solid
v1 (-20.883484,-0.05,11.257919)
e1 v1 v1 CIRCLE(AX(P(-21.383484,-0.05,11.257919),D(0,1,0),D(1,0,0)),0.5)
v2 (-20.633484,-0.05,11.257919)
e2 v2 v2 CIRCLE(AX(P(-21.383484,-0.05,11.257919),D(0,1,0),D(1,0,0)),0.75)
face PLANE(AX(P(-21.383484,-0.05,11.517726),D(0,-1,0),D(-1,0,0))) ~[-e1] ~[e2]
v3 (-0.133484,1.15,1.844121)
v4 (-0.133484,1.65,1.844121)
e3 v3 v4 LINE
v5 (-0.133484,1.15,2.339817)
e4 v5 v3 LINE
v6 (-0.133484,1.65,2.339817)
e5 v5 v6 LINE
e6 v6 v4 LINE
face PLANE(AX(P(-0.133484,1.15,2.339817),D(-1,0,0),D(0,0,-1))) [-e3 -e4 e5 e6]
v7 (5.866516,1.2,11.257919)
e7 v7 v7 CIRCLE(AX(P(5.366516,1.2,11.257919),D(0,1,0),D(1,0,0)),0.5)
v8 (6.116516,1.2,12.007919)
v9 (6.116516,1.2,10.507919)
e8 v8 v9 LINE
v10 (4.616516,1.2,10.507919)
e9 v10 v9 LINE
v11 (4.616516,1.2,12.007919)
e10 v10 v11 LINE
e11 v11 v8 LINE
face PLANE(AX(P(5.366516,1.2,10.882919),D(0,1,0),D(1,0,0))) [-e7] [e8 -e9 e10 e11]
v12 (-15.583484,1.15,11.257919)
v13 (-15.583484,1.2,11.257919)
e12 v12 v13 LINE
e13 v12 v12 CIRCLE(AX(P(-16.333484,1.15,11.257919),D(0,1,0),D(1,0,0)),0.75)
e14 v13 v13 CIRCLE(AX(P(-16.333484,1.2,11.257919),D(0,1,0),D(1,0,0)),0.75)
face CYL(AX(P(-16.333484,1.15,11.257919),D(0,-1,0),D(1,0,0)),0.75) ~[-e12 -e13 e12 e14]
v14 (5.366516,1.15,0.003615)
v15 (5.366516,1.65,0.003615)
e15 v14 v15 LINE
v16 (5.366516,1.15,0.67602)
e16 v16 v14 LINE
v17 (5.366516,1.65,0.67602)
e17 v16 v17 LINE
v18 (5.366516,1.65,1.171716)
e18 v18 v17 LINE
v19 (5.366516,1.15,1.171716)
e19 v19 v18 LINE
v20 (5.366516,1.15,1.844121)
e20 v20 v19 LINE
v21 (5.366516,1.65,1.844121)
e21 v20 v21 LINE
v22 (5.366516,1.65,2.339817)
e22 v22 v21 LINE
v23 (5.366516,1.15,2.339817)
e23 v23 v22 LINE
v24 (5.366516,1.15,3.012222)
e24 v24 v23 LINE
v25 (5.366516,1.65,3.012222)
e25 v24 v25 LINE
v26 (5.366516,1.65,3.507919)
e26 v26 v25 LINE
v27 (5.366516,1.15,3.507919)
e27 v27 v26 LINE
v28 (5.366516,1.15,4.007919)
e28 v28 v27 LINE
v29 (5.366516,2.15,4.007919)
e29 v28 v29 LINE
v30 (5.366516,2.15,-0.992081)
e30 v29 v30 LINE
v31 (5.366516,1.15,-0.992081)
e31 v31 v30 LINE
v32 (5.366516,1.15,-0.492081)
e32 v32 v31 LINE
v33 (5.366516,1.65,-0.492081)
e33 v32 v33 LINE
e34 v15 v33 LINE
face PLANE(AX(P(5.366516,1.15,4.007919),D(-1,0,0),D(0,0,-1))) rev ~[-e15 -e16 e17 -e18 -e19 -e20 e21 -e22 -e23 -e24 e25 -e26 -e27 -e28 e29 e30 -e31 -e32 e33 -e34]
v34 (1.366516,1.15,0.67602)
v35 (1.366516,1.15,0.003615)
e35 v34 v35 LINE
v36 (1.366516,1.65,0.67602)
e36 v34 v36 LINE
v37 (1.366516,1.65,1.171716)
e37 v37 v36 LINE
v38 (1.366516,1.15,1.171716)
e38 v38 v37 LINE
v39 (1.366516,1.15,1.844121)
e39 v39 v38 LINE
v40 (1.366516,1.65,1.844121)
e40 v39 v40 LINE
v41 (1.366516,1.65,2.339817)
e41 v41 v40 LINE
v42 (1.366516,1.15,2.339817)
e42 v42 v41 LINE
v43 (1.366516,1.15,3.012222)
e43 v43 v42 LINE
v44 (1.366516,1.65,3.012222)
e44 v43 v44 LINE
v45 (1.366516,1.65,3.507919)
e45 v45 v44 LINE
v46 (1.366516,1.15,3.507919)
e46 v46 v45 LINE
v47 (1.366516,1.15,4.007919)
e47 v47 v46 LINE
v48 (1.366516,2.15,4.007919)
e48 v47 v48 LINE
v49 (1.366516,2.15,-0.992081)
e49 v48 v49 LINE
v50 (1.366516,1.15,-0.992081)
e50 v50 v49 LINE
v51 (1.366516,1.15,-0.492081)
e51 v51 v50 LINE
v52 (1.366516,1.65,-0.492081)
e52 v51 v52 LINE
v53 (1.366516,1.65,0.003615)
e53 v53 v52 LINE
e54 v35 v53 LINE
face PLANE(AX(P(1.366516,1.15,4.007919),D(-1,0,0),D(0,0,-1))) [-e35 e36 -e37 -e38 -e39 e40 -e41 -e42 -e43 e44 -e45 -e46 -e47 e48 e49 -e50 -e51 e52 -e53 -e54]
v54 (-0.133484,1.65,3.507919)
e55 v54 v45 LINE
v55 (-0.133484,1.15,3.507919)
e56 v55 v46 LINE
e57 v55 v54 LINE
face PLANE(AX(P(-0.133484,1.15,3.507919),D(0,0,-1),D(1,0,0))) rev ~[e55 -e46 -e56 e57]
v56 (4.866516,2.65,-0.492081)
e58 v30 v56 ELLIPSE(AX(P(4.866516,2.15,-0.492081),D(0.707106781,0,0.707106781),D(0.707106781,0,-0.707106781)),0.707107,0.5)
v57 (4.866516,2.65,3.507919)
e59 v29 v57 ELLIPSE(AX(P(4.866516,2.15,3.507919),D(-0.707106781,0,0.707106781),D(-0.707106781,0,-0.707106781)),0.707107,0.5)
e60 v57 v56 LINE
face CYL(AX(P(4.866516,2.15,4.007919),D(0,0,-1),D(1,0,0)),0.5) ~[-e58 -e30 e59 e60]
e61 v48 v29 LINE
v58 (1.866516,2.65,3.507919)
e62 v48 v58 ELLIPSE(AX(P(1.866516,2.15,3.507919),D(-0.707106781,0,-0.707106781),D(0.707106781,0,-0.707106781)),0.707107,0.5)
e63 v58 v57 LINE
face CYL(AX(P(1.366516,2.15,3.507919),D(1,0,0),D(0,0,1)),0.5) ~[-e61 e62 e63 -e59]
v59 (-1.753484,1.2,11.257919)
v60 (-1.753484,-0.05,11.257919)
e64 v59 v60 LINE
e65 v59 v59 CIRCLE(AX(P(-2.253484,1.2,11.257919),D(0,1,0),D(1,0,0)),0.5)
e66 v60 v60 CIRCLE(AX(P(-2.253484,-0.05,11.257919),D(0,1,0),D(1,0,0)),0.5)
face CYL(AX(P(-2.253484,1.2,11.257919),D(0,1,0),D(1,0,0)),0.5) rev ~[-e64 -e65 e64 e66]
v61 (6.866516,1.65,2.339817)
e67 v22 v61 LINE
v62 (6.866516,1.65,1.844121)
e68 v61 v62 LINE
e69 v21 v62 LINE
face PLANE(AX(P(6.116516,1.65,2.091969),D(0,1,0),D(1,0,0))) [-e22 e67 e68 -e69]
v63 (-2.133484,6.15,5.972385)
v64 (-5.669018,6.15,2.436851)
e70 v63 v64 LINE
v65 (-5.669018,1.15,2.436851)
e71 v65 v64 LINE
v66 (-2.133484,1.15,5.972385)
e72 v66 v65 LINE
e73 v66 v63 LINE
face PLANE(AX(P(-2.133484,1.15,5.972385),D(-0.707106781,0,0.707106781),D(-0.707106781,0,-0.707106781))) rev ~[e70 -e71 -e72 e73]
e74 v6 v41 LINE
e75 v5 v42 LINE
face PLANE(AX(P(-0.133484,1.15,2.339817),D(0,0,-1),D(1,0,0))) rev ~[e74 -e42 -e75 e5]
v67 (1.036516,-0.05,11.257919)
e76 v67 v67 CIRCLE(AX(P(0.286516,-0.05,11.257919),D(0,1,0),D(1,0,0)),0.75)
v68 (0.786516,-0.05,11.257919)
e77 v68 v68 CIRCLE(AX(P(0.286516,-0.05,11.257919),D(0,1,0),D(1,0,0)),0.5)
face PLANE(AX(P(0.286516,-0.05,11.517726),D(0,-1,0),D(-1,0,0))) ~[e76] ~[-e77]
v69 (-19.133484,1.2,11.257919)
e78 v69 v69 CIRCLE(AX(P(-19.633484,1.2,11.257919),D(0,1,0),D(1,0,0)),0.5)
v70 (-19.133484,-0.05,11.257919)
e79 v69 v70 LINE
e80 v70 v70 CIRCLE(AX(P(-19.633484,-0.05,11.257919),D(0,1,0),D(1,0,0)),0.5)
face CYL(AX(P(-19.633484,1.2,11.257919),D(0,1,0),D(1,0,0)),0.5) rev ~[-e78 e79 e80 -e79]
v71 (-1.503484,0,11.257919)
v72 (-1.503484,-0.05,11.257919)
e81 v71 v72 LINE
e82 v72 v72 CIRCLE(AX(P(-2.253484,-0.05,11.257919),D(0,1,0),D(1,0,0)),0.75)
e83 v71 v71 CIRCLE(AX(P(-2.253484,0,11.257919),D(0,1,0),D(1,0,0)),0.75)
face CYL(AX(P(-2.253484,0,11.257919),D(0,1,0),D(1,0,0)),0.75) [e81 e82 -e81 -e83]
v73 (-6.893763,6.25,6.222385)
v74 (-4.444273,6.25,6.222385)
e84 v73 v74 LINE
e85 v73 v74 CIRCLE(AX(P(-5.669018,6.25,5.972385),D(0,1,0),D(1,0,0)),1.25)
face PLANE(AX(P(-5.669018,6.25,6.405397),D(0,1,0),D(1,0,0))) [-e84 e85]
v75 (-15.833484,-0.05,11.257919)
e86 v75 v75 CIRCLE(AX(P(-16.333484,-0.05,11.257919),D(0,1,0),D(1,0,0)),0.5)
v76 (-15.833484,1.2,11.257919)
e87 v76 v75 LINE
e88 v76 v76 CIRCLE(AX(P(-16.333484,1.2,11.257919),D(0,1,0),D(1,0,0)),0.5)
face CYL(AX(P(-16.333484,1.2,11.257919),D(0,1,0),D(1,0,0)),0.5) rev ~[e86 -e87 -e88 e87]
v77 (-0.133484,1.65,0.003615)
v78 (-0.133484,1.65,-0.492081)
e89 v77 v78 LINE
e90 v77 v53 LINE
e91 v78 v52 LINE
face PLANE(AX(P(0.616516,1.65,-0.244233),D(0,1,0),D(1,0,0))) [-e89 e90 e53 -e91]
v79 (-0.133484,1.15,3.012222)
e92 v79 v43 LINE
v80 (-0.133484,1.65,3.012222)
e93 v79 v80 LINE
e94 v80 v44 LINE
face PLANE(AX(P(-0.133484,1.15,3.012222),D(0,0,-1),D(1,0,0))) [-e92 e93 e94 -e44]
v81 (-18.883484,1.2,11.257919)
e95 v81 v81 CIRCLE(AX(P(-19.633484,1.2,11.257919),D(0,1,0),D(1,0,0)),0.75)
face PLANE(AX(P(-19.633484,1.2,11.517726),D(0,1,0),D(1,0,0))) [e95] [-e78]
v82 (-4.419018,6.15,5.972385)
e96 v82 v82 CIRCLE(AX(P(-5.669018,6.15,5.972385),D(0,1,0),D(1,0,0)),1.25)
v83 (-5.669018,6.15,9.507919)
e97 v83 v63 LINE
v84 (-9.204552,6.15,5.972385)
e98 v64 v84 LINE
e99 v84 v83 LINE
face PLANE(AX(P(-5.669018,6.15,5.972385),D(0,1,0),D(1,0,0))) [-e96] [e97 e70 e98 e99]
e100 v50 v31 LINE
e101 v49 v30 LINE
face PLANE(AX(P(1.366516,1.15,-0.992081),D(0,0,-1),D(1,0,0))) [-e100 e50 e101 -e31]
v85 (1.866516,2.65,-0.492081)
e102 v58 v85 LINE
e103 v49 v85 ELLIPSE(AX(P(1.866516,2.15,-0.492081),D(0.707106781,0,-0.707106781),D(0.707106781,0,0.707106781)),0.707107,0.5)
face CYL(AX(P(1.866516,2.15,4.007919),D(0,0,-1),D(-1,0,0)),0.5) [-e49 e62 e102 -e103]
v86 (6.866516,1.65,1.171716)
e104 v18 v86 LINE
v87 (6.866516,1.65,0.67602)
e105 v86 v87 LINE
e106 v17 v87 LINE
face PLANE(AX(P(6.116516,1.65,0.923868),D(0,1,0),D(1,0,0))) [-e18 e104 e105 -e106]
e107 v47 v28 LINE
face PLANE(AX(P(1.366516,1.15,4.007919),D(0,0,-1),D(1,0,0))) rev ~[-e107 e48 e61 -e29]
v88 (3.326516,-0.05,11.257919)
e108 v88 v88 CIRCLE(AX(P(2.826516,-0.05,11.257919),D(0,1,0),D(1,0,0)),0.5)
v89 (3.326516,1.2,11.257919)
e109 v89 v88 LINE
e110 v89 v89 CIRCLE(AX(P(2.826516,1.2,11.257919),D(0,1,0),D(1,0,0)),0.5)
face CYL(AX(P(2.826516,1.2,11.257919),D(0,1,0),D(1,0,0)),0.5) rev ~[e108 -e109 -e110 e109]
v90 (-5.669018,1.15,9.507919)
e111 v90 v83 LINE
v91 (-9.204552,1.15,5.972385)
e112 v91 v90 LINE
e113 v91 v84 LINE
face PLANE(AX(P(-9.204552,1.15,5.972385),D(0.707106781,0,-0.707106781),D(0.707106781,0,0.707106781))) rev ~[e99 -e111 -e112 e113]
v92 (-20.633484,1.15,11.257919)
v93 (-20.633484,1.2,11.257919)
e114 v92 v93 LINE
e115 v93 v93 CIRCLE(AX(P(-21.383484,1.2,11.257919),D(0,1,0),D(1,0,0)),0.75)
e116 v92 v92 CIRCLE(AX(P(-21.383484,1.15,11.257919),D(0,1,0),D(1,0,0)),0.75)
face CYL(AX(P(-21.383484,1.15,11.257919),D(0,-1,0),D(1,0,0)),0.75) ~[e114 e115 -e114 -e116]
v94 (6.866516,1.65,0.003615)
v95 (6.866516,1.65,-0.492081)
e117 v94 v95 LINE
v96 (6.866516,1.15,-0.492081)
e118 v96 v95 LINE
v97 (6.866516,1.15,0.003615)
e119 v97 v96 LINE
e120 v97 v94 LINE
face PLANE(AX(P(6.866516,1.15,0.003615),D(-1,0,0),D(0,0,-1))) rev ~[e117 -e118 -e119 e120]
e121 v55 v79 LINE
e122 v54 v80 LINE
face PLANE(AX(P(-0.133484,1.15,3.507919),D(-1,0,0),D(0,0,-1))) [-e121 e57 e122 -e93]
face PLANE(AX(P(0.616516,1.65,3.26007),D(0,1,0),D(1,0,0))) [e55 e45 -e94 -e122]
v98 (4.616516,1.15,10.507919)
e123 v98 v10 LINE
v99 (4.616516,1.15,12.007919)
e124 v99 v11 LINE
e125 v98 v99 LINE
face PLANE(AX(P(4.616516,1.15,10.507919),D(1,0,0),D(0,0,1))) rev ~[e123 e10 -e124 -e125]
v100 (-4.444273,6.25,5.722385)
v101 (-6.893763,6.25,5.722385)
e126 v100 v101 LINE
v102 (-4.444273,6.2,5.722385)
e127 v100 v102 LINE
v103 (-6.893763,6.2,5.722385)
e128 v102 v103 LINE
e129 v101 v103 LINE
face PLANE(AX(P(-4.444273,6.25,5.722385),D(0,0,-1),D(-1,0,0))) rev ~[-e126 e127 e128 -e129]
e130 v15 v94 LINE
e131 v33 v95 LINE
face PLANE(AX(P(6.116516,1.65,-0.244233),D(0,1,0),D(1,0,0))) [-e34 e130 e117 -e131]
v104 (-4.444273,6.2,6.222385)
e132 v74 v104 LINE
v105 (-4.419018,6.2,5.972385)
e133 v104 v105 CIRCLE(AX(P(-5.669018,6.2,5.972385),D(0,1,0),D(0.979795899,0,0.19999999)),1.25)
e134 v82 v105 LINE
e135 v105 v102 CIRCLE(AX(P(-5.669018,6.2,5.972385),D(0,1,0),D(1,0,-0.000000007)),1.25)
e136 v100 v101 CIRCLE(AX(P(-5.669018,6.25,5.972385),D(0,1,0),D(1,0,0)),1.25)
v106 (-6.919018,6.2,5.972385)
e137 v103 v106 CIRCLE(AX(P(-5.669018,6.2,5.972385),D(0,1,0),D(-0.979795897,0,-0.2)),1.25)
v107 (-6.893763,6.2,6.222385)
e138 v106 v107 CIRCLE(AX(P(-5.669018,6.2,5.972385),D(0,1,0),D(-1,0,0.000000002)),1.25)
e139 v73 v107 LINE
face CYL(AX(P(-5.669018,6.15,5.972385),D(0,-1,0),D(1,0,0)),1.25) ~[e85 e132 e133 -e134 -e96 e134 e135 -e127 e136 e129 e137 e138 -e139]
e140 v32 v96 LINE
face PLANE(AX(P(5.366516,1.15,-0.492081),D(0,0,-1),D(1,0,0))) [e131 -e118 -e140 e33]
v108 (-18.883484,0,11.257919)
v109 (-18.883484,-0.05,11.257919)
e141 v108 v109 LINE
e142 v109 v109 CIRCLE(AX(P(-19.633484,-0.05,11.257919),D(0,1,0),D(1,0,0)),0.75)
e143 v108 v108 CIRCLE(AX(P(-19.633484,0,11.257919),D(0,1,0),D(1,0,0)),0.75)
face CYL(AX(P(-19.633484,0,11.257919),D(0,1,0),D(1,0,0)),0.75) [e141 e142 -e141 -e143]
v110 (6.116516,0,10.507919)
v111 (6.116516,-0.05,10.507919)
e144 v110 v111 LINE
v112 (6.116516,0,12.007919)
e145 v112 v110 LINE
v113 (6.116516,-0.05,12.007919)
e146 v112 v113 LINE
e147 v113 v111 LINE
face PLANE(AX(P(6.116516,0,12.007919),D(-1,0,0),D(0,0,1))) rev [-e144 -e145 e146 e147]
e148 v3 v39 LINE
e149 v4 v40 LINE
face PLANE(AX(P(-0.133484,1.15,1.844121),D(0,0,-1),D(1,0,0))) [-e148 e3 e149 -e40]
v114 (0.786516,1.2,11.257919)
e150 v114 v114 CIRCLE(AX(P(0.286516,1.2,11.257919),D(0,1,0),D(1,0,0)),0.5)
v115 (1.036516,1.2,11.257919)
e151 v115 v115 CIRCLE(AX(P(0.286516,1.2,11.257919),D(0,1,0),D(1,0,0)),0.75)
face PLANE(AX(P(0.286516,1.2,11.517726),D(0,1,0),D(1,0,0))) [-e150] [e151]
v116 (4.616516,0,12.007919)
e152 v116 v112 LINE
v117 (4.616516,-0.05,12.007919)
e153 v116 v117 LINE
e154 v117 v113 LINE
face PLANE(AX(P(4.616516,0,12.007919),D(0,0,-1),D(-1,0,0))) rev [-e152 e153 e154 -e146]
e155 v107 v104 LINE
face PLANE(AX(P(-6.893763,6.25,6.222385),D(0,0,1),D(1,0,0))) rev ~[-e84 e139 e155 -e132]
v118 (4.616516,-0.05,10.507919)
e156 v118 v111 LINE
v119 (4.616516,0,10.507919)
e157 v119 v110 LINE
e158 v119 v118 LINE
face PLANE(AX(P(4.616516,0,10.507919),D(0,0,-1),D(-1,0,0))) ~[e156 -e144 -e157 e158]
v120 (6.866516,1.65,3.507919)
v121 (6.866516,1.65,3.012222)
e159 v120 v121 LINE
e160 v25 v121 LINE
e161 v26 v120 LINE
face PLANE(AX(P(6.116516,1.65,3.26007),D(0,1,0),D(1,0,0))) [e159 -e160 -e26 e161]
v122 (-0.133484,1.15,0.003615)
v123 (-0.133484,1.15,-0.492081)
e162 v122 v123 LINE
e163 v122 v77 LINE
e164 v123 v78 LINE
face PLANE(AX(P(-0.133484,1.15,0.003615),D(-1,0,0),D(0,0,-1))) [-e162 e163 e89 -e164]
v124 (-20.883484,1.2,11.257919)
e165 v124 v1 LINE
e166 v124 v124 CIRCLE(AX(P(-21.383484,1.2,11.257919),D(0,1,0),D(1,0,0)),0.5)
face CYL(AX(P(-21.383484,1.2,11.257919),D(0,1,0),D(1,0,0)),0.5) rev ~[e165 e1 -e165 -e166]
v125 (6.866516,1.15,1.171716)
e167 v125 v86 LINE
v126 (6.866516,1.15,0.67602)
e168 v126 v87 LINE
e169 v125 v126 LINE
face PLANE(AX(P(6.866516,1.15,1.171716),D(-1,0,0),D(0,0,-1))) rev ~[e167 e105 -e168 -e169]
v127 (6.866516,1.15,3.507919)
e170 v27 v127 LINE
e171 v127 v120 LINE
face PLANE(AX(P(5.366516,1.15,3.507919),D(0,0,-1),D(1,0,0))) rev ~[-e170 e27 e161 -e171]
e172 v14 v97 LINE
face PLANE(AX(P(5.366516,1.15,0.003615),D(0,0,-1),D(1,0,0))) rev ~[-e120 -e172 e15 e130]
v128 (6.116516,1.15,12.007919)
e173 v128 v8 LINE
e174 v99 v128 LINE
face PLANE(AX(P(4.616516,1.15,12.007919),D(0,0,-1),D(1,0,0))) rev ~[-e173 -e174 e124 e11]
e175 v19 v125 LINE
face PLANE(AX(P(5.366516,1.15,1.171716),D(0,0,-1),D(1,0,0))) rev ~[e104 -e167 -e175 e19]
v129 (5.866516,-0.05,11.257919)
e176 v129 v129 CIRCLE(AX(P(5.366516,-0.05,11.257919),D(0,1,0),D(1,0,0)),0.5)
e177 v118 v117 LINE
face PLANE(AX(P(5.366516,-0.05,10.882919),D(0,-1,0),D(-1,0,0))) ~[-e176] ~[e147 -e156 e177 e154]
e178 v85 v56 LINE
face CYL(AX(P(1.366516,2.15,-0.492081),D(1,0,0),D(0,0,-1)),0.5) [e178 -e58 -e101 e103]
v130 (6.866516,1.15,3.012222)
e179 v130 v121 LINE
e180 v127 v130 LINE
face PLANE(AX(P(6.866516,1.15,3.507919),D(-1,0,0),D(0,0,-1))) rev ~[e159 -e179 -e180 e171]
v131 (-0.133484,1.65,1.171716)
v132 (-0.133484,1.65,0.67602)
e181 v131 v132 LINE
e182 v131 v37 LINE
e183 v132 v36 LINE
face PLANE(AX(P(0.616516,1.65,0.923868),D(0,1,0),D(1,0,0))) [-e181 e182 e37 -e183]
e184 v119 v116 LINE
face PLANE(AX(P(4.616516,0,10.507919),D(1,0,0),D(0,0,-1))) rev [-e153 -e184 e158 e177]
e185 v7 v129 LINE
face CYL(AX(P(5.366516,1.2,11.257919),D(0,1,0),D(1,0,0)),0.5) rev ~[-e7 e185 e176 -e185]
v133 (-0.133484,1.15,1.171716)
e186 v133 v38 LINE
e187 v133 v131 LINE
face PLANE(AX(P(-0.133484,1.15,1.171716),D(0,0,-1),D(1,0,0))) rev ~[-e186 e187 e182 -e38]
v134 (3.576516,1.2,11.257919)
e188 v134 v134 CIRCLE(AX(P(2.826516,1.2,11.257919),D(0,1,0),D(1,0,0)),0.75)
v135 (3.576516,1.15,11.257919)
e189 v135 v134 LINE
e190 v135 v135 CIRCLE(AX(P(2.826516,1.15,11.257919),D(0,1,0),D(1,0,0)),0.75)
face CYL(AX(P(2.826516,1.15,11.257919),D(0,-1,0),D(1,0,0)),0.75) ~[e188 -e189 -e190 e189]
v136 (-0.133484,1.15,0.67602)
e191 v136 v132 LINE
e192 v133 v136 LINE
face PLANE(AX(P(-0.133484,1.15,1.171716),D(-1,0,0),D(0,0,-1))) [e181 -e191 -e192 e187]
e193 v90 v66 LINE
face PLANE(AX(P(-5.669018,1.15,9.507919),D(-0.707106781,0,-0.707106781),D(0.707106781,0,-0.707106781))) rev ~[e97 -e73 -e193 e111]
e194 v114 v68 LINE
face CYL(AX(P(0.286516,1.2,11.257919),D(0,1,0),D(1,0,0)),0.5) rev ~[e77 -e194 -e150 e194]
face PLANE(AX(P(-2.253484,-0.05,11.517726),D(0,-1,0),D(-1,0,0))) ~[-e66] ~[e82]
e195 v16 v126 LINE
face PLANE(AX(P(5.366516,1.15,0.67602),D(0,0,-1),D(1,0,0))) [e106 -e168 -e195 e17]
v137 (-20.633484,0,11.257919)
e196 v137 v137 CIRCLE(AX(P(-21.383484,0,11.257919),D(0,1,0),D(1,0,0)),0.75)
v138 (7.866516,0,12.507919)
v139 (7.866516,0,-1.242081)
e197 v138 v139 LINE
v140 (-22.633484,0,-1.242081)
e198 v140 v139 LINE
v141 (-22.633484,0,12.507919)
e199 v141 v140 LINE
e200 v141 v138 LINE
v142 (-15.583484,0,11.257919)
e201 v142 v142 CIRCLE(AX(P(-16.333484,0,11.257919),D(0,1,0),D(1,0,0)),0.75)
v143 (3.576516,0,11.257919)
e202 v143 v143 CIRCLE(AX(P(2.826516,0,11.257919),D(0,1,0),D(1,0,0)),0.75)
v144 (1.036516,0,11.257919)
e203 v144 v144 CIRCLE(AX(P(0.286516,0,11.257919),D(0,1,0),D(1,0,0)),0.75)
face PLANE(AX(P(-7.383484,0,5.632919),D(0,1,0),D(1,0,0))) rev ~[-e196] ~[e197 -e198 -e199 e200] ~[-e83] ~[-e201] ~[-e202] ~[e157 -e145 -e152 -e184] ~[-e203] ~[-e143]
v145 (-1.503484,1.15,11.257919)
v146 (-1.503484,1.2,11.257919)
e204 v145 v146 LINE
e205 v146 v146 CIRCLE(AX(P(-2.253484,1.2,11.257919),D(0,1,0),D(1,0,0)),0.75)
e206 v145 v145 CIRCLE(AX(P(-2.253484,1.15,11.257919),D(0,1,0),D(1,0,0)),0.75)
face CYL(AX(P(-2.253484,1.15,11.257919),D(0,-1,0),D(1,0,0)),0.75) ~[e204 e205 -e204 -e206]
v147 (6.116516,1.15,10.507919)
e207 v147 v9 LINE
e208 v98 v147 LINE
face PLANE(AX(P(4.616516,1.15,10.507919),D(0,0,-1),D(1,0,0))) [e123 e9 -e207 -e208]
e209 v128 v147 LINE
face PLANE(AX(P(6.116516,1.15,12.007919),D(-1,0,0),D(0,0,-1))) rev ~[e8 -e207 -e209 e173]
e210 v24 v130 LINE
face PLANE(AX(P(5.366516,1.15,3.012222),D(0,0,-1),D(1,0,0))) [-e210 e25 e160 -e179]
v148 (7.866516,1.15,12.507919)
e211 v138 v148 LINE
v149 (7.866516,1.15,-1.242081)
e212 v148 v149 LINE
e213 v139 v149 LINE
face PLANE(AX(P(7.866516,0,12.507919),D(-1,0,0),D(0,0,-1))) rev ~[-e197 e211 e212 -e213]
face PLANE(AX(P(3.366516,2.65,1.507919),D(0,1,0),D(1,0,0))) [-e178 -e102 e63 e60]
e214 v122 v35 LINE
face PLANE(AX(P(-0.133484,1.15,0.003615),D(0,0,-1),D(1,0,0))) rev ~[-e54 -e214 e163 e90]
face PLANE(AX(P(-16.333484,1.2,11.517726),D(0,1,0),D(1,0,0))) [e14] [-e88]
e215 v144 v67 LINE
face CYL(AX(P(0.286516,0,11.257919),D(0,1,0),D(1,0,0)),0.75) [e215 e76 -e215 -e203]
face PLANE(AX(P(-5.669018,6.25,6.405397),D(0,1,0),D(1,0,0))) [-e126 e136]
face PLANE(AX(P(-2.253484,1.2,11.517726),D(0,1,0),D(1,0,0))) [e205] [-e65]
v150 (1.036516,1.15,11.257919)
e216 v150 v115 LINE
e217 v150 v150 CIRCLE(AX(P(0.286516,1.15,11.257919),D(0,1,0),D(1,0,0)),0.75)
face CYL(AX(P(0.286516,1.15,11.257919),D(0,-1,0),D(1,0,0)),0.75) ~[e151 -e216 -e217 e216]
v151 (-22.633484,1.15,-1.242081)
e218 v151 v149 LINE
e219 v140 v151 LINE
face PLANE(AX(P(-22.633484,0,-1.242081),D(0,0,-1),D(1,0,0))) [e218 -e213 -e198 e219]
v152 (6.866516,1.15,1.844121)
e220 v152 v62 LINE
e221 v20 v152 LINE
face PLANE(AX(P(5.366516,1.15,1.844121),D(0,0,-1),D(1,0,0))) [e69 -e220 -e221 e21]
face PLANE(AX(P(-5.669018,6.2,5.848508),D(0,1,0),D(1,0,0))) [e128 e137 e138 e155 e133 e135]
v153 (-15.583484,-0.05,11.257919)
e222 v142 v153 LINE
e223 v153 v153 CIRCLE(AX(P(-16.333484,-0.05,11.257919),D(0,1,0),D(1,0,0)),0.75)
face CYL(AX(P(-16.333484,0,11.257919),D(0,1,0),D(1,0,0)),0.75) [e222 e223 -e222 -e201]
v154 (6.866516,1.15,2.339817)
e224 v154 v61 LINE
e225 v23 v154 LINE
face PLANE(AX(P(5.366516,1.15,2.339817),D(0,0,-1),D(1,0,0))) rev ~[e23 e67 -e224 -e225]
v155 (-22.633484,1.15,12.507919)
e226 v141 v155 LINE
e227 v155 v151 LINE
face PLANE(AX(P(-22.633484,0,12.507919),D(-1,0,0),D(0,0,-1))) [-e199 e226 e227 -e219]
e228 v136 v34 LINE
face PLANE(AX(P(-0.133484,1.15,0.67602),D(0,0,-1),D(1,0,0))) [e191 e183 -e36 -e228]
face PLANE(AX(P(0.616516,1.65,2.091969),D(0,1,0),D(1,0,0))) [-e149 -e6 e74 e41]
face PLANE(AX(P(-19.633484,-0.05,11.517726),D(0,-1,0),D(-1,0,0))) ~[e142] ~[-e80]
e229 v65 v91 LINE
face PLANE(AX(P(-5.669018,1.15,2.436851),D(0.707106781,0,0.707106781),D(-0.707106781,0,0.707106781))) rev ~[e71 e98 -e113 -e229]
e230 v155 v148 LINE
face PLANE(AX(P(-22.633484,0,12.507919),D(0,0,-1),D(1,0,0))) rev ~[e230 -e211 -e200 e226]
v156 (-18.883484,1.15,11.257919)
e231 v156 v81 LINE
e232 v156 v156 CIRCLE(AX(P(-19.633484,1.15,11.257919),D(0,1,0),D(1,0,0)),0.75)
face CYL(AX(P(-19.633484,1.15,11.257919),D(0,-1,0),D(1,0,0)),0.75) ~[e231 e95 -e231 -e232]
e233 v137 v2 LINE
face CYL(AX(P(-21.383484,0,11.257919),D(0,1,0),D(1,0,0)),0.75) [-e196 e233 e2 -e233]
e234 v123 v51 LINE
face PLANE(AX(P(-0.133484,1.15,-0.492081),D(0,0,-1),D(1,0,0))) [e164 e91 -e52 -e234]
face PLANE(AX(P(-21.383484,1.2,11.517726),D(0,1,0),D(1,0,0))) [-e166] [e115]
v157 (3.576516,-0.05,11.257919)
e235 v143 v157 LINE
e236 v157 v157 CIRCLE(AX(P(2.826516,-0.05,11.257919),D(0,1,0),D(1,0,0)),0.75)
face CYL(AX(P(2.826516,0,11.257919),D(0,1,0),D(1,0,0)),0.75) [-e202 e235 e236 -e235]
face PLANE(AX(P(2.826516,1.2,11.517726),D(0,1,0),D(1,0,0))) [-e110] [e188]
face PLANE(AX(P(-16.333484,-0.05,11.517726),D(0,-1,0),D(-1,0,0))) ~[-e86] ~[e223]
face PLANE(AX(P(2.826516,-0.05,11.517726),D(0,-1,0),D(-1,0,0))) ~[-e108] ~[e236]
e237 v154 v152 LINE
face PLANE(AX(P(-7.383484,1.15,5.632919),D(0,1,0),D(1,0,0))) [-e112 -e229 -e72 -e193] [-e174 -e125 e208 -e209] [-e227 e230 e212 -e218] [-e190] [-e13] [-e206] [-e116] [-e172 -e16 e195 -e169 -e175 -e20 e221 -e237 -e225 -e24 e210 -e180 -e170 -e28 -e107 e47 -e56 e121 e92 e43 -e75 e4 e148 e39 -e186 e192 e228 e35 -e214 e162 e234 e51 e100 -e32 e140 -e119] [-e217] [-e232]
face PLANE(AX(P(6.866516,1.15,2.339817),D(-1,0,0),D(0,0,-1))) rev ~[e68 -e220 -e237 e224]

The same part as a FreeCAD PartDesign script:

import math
import FreeCAD as App
import Part
import Sketcher
from FreeCAD import Vector
Q = App.Units.Quantity


def edges_at(feature, points):
    """Names of the edges that pass closest to the given points."""
    edges = feature.Shape.Edges
    near = lambda p: min(range(len(edges)), key=lambda i: edges[i].distToShape(Part.Vertex(*p))[0])
    return sorted({f"Edge{near(p) + 1}" for p in points})

doc = App.newDocument("Part")
params = doc.addObject("Spreadsheet::Sheet", "Params")
for row, (alias, value) in enumerate([
    ("sketch1_width", "30.5 mm"),
    ("sketch1_height", "13.75 mm"),
    ("pad1_length", "1.15 mm"),
    ("sketch2_length", "5 mm"),
    ("pad2_length", "5 mm"),
    ("sketch3_diameter", "2.5 mm"),
    ("pad3_length", "0.1 mm"),
    ("sketch4_radius", "1.25 mm"),
    ("pocket1_length", "0.05 mm"),
    ("sketch5_diameter", "1.5 mm"),
    ("sketch5_width", "1.5 mm"),
    ("pad4_length", "0.05 mm"),
    ("sketch6_diameter", "1 mm"),
    ("sketch7_width", "4 mm"),
    ("sketch7_height", "5 mm"),
    ("pad5_length", "1.5 mm"),
    ("fillet_radius", "0.5 mm"),
    ("sketch8_width", "1.5 mm"),
    ("pad6_length", "0.5 mm"),
], start=1):
    params.set(f"A{row}", alias)
    params.set(f"B{row}", "=" + value)
    params.setAlias(f"B{row}", alias)

body = doc.addObject("PartDesign::Body", "Body")

sketch1 = body.newObject("Sketcher::SketchObject", "Sketch")
sketch1.AttachmentSupport = (doc.getObject("XZ_Plane"), [""])
sketch1.MapMode = "FlatFace"
sketch1.addGeometry([
    Part.LineSegment(Vector(-23, -1, 0), Vector(-23, 13, 0)),
    Part.LineSegment(Vector(-23, 13, 0), Vector(8, 13, 0)),
    Part.LineSegment(Vector(8, 13, 0), Vector(8, -1, 0)),
    Part.LineSegment(Vector(8, -1, 0), Vector(-23, -1, 0)),
], False)
sketch1.addConstraint([
    Sketcher.Constraint("Coincident", 0, 2, 1, 1),
    Sketcher.Constraint("Coincident", 1, 2, 2, 1),
    Sketcher.Constraint("Coincident", 2, 2, 3, 1),
    Sketcher.Constraint("Coincident", 3, 2, 0, 1),
    Sketcher.Constraint("Vertical", 0),
    Sketcher.Constraint("Horizontal", 1),
    Sketcher.Constraint("Vertical", 2),
    Sketcher.Constraint("Horizontal", 3),
    Sketcher.Constraint("DistanceX", 1, 1, 1, 2, Q("30.5 mm")),
    Sketcher.Constraint("DistanceY", 0, 1, 0, 2, Q("13.75 mm")),
    Sketcher.Constraint("DistanceY", -1, 1, 0, 2, Q("12.507919 mm")),
    Sketcher.Constraint("DistanceX", 0, 2, -1, 1, Q("22.633484 mm")),
])
sketch1.setExpression("Constraints[8]", "Params.sketch1_width")
sketch1.setExpression("Constraints[9]", "Params.sketch1_height")
pad1 = body.newObject("PartDesign::Pad", "Pad")
pad1.Profile = sketch1
pad1.setExpression("Length", "Params.pad1_length")
pad1.Reversed = True

sketch2 = body.newObject("Sketcher::SketchObject", "Sketch001")
sketch2.AttachmentSupport = (doc.getObject("XZ_Plane"), [""])
sketch2.MapMode = "FlatFace"
sketch2.AttachmentOffset = App.Placement(Vector(0, 0, -1.15), App.Rotation())
sketch2.addGeometry([
    Part.LineSegment(Vector(-9, 6, 0), Vector(-6, 10, 0)),
    Part.LineSegment(Vector(-6, 10, 0), Vector(-2, 6, 0)),
    Part.LineSegment(Vector(-2, 6, 0), Vector(-6, 2, 0)),
    Part.LineSegment(Vector(-6, 2, 0), Vector(-9, 6, 0)),
], False)
sketch2.addConstraint([
    Sketcher.Constraint("Coincident", 0, 2, 1, 1),
    Sketcher.Constraint("Coincident", 1, 2, 2, 1),
    Sketcher.Constraint("Coincident", 2, 2, 3, 1),
    Sketcher.Constraint("Coincident", 3, 2, 0, 1),
    Sketcher.Constraint("Perpendicular", 0, 1),
    Sketcher.Constraint("Perpendicular", 1, 2),
    Sketcher.Constraint("Perpendicular", 2, 3),
    Sketcher.Constraint("Horizontal", 1, 2, 3, 2),
    Sketcher.Constraint("Vertical", 0, 2, 2, 2),
    Sketcher.Constraint("Distance", 0, Q("5 mm")),
    Sketcher.Constraint("DistanceX", 0, 2, -1, 1, Q("5.669018 mm")),
    Sketcher.Constraint("DistanceY", -1, 1, 0, 2, Q("9.507919 mm")),
])
sketch2.setExpression("Constraints[9]", "Params.sketch2_length")
pad2 = body.newObject("PartDesign::Pad", "Pad001")
pad2.Profile = sketch2
pad2.setExpression("Length", "Params.pad2_length")
pad2.Reversed = True

sketch3 = body.newObject("Sketcher::SketchObject", "Sketch002")
sketch3.AttachmentSupport = (doc.getObject("XZ_Plane"), [""])
sketch3.MapMode = "FlatFace"
sketch3.AttachmentOffset = App.Placement(Vector(0, 0, -6.15), App.Rotation())
sketch3.addGeometry(Part.Circle(Vector(-5.7, 6, 0), Vector(0, 0, 1), 1.2), False)
sketch3.addConstraint([
    Sketcher.Constraint("Diameter", 0, Q("2.5 mm")),
    Sketcher.Constraint("DistanceX", 0, 3, -1, 1, Q("5.669018 mm")),
    Sketcher.Constraint("DistanceY", -1, 1, 0, 3, Q("5.972385 mm")),
])
sketch3.setExpression("Constraints[0]", "Params.sketch3_diameter")
pad3 = body.newObject("PartDesign::Pad", "Pad002")
pad3.Profile = sketch3
pad3.setExpression("Length", "Params.pad3_length")
pad3.Reversed = True

sketch4 = body.newObject("Sketcher::SketchObject", "Sketch003")
sketch4.AttachmentSupport = (doc.getObject("XZ_Plane"), [""])
sketch4.MapMode = "FlatFace"
sketch4.AttachmentOffset = App.Placement(Vector(0, 0, -6.25), App.Rotation())
sketch4.addGeometry([
    Part.ArcOfCircle(Part.Circle(Vector(-5.67, 5.97, 0), Vector(0, 0, 1), 1.25), math.radians(-11.54), math.radians(0)),
    Part.LineSegment(Vector(-4.44, 5.72, 0), Vector(-6.89, 5.72, 0)),
    Part.ArcOfCircle(Part.Circle(Vector(-5.67, 5.97, 0), Vector(0, 0, 1), 1.25), math.radians(-180), math.radians(-168.46)),
    Part.ArcOfCircle(Part.Circle(Vector(-5.67, 5.97, 0), Vector(0, 0, 1), 1.25), math.radians(168.46), math.radians(180)),
    Part.LineSegment(Vector(-6.89, 6.22, 0), Vector(-4.44, 6.22, 0)),
    Part.ArcOfCircle(Part.Circle(Vector(-5.67, 5.97, 0), Vector(0, 0, 1), 1.25), math.radians(0), math.radians(11.54)),
], False)
sketch4.addConstraint([
    Sketcher.Constraint("Coincident", 0, 1, 1, 1),
    Sketcher.Constraint("Coincident", 1, 2, 2, 2),
    Sketcher.Constraint("Tangent", 2, 1, 3, 2),
    Sketcher.Constraint("Coincident", 3, 1, 4, 1),
    Sketcher.Constraint("Coincident", 4, 2, 5, 2),
    Sketcher.Constraint("Tangent", 5, 1, 0, 2),
    Sketcher.Constraint("Horizontal", 1),
    Sketcher.Constraint("Horizontal", 4),
    Sketcher.Constraint("Coincident", 2, 3, 0, 3),
    Sketcher.Constraint("Equal", 0, 2),
    Sketcher.Constraint("Equal", 2, 3),
    Sketcher.Constraint("Equal", 3, 5),
    Sketcher.Constraint("Horizontal", 5, 3, 2, 1),
    Sketcher.Constraint("Horizontal", 2, 1, 5, 1),
    Sketcher.Constraint("Vertical", 1, 2, 3, 1),
    Sketcher.Constraint("Radius", 0, Q("1.25 mm")),
    Sketcher.Constraint("DistanceY", 1, 2, 3, 1, Q("0.5 mm")),
    Sketcher.Constraint("DistanceX", 0, 3, -1, 1, Q("5.669018 mm")),
    Sketcher.Constraint("DistanceY", -1, 1, 0, 3, Q("5.972385 mm")),
])
sketch4.setExpression("Constraints[15]", "Params.sketch4_radius")
pocket1 = body.newObject("PartDesign::Pocket", "Pocket")
pocket1.Profile = sketch4
pocket1.setExpression("Length", "Params.pocket1_length")
pocket1.Reversed = True

sketch5 = body.newObject("Sketcher::SketchObject", "Sketch004")
sketch5.AttachmentSupport = (doc.getObject("XZ_Plane"), [""])
sketch5.MapMode = "FlatFace"
sketch5.AttachmentOffset = App.Placement(Vector(0, 0, -1.15), App.Rotation())
sketch5.addGeometry([
    Part.Circle(Vector(-2.3, 11.3, 0), Vector(0, 0, 1), 0.8),
    Part.Circle(Vector(0.3, 11.3, 0), Vector(0, 0, 1), 0.8),
    Part.Circle(Vector(2.8, 11.3, 0), Vector(0, 0, 1), 0.8),
    Part.LineSegment(Vector(4.6, 10.5, 0), Vector(4.6, 12, 0)),
    Part.LineSegment(Vector(4.6, 12, 0), Vector(6.1, 12, 0)),
    Part.LineSegment(Vector(6.1, 12, 0), Vector(6.1, 10.5, 0)),
    Part.LineSegment(Vector(6.1, 10.5, 0), Vector(4.6, 10.5, 0)),
    Part.Circle(Vector(-16.3, 11.3, 0), Vector(0, 0, 1), 0.8),
    Part.Circle(Vector(-19.6, 11.3, 0), Vector(0, 0, 1), 0.8),
    Part.Circle(Vector(-21.4, 11.3, 0), Vector(0, 0, 1), 0.8),
], False)
sketch5.addConstraint([
    Sketcher.Constraint("Coincident", 3, 2, 4, 1),
    Sketcher.Constraint("Coincident", 4, 2, 5, 1),
    Sketcher.Constraint("Coincident", 5, 2, 6, 1),
    Sketcher.Constraint("Coincident", 6, 2, 3, 1),
    Sketcher.Constraint("Vertical", 3),
    Sketcher.Constraint("Horizontal", 4),
    Sketcher.Constraint("Vertical", 5),
    Sketcher.Constraint("Horizontal", 6),
    Sketcher.Constraint("Equal", 0, 1),
    Sketcher.Constraint("Equal", 1, 2),
    Sketcher.Constraint("Equal", 2, 7),
    Sketcher.Constraint("Equal", 7, 8),
    Sketcher.Constraint("Equal", 8, 9),
    Sketcher.Constraint("Horizontal", 0, 3, 1, 3),
    Sketcher.Constraint("Horizontal", 1, 3, 2, 3),
    Sketcher.Constraint("Horizontal", 2, 3, 7, 3),
    Sketcher.Constraint("Horizontal", 7, 3, 8, 3),
    Sketcher.Constraint("Horizontal", 8, 3, 9, 3),
    Sketcher.Constraint("Equal", 6, 3),
    Sketcher.Constraint("Diameter", 0, Q("1.5 mm")),
    Sketcher.Constraint("DistanceX", 4, 1, 4, 2, Q("1.5 mm")),
    Sketcher.Constraint("DistanceX", 8, 3, 7, 3, Q("3.3 mm")),
    Sketcher.Constraint("DistanceX", 0, 3, 1, 3, Q("2.54 mm")),
    Sketcher.Constraint("DistanceX", 1, 3, 2, 3, Q("2.54 mm")),
    Sketcher.Constraint("DistanceX", 7, 3, 0, 3, Q("14.08 mm")),
    Sketcher.Constraint("DistanceX", 9, 3, 8, 3, Q("1.75 mm")),
    Sketcher.Constraint("DistanceX", 2, 3, 3, 2, Q("1.79 mm")),
    Sketcher.Constraint("DistanceY", 2, 3, 3, 2, Q("0.75 mm")),
    Sketcher.Constraint("DistanceY", -1, 1, 0, 3, Q("11.257919 mm")),
    Sketcher.Constraint("DistanceX", 0, 3, -1, 1, Q("2.253484 mm")),
])
sketch5.setExpression("Constraints[19]", "Params.sketch5_diameter")
sketch5.setExpression("Constraints[20]", "Params.sketch5_width")
pad4 = body.newObject("PartDesign::Pad", "Pad003")
pad4.Profile = sketch5
pad4.setExpression("Length", "Params.pad4_length")
pad4.Reversed = True
doc.recompute()

datumplane = body.newObject("PartDesign::Plane", "DatumPlane")
datumplane.AttachmentSupport = (doc.getObject("XZ_Plane"), [""])
datumplane.MapMode = "FlatFace"
datumplane.AttachmentOffset = App.Placement(Vector(0, 0, -0.575), App.Rotation())
mirrored = body.newObject("PartDesign::Mirrored", "Mirrored")
mirrored.Originals = [pad4]
mirrored.MirrorPlane = (datumplane, [""])
body.Tip = mirrored

sketch6 = body.newObject("Sketcher::SketchObject", "Sketch005")
sketch6.AttachmentSupport = (doc.getObject("XZ_Plane"), [""])
sketch6.MapMode = "FlatFace"
sketch6.AttachmentOffset = App.Placement(Vector(0, 0, -1.2), App.Rotation())
sketch6.addGeometry([
    Part.Circle(Vector(-21.4, 11.3, 0), Vector(0, 0, 1), 0.5),
    Part.Circle(Vector(-19.6, 11.3, 0), Vector(0, 0, 1), 0.5),
    Part.Circle(Vector(-16.3, 11.3, 0), Vector(0, 0, 1), 0.5),
    Part.Circle(Vector(-2.3, 11.3, 0), Vector(0, 0, 1), 0.5),
    Part.Circle(Vector(0.3, 11.3, 0), Vector(0, 0, 1), 0.5),
    Part.Circle(Vector(2.8, 11.3, 0), Vector(0, 0, 1), 0.5),
    Part.Circle(Vector(5.4, 11.3, 0), Vector(0, 0, 1), 0.5),
], False)
sketch6.addConstraint([
    Sketcher.Constraint("Equal", 0, 1),
    Sketcher.Constraint("Equal", 1, 2),
    Sketcher.Constraint("Equal", 2, 3),
    Sketcher.Constraint("Equal", 3, 4),
    Sketcher.Constraint("Equal", 4, 5),
    Sketcher.Constraint("Equal", 5, 6),
    Sketcher.Constraint("Horizontal", 0, 3, 1, 3),
    Sketcher.Constraint("Horizontal", 1, 3, 2, 3),
    Sketcher.Constraint("Horizontal", 2, 3, 3, 3),
    Sketcher.Constraint("Horizontal", 3, 3, 4, 3),
    Sketcher.Constraint("Horizontal", 4, 3, 5, 3),
    Sketcher.Constraint("Horizontal", 5, 3, 6, 3),
    Sketcher.Constraint("Diameter", 0, Q("1 mm")),
    Sketcher.Constraint("DistanceX", 1, 3, 6, 3, Q("25 mm")),
    Sketcher.Constraint("DistanceX", 1, 3, 2, 3, Q("3.3 mm")),
    Sketcher.Constraint("DistanceX", 0, 3, 1, 3, Q("1.75 mm")),
    Sketcher.Constraint("DistanceX", 2, 3, 3, 3, Q("14.08 mm")),
    Sketcher.Constraint("DistanceX", 3, 3, 4, 3, Q("2.54 mm")),
    Sketcher.Constraint("DistanceX", 4, 3, 5, 3, Q("2.54 mm")),
    Sketcher.Constraint("DistanceY", -1, 1, 0, 3, Q("11.257919 mm")),
    Sketcher.Constraint("DistanceX", 0, 3, -1, 1, Q("21.383484 mm")),
])
sketch6.setExpression("Constraints[12]", "Params.sketch6_diameter")
pocket2 = body.newObject("PartDesign::Pocket", "Pocket001")
pocket2.Profile = sketch6
pocket2.Type = "ThroughAll"
pocket2.Reversed = True

sketch7 = body.newObject("Sketcher::SketchObject", "Sketch006")
sketch7.AttachmentSupport = (doc.getObject("XZ_Plane"), [""])
sketch7.MapMode = "FlatFace"
sketch7.AttachmentOffset = App.Placement(Vector(0, 0, -1.15), App.Rotation())
sketch7.addGeometry([
    Part.LineSegment(Vector(1.4, -1, 0), Vector(1.4, 4, 0)),
    Part.LineSegment(Vector(1.4, 4, 0), Vector(5.4, 4, 0)),
    Part.LineSegment(Vector(5.4, 4, 0), Vector(5.4, -1, 0)),
    Part.LineSegment(Vector(5.4, -1, 0), Vector(1.4, -1, 0)),
], False)
sketch7.addConstraint([
    Sketcher.Constraint("Coincident", 0, 2, 1, 1),
    Sketcher.Constraint("Coincident", 1, 2, 2, 1),
    Sketcher.Constraint("Coincident", 2, 2, 3, 1),
    Sketcher.Constraint("Coincident", 3, 2, 0, 1),
    Sketcher.Constraint("Vertical", 0),
    Sketcher.Constraint("Horizontal", 1),
    Sketcher.Constraint("Vertical", 2),
    Sketcher.Constraint("Horizontal", 3),
    Sketcher.Constraint("DistanceX", 1, 1, 1, 2, Q("4 mm")),
    Sketcher.Constraint("DistanceY", 0, 1, 0, 2, Q("5 mm")),
    Sketcher.Constraint("DistanceY", -1, 1, 0, 2, Q("4.007919 mm")),
    Sketcher.Constraint("DistanceX", -1, 1, 0, 2, Q("1.366516 mm")),
])
sketch7.setExpression("Constraints[8]", "Params.sketch7_width")
sketch7.setExpression("Constraints[9]", "Params.sketch7_height")
pad5 = body.newObject("PartDesign::Pad", "Pad004")
pad5.Profile = sketch7
pad5.setExpression("Length", "Params.pad5_length")
pad5.Reversed = True
doc.recompute()

fillet = body.newObject("PartDesign::Fillet", "Fillet")
fillet.Base = (pad5, edges_at(pad5, [
    (5.367, 2.65, 1.508),
    (3.367, 2.65, -0.992),
    (1.367, 2.65, 1.508),
    (3.367, 2.65, 4.008),
]))
fillet.setExpression("Radius", "Params.fillet_radius")

sketch8 = body.newObject("Sketcher::SketchObject", "Sketch007")
sketch8.AttachmentSupport = (doc.getObject("XZ_Plane"), [""])
sketch8.MapMode = "FlatFace"
sketch8.AttachmentOffset = App.Placement(Vector(0, 0, -1.15), App.Rotation())
sketch8.addGeometry([
    Part.LineSegment(Vector(5.37, 0.68, 0), Vector(5.37, 1.17, 0)),
    Part.LineSegment(Vector(5.37, 1.17, 0), Vector(6.87, 1.17, 0)),
    Part.LineSegment(Vector(6.87, 1.17, 0), Vector(6.87, 0.68, 0)),
    Part.LineSegment(Vector(6.87, 0.68, 0), Vector(5.37, 0.68, 0)),
    Part.LineSegment(Vector(5.37, 1.84, 0), Vector(5.37, 2.34, 0)),
    Part.LineSegment(Vector(5.37, 2.34, 0), Vector(6.87, 2.34, 0)),
    Part.LineSegment(Vector(6.87, 2.34, 0), Vector(6.87, 1.84, 0)),
    Part.LineSegment(Vector(6.87, 1.84, 0), Vector(5.37, 1.84, 0)),
    Part.LineSegment(Vector(5.37, 3.01, 0), Vector(5.37, 3.51, 0)),
    Part.LineSegment(Vector(5.37, 3.51, 0), Vector(6.87, 3.51, 0)),
    Part.LineSegment(Vector(6.87, 3.51, 0), Vector(6.87, 3.01, 0)),
    Part.LineSegment(Vector(6.87, 3.01, 0), Vector(5.37, 3.01, 0)),
    Part.LineSegment(Vector(5.37, -0.49, 0), Vector(5.37, 0, 0)),
    Part.LineSegment(Vector(5.37, 0, 0), Vector(6.87, 0, 0)),
    Part.LineSegment(Vector(6.87, 0, 0), Vector(6.87, -0.49, 0)),
    Part.LineSegment(Vector(6.87, -0.49, 0), Vector(5.37, -0.49, 0)),
    Part.LineSegment(Vector(-0.13, 3.01, 0), Vector(-0.13, 3.51, 0)),
    Part.LineSegment(Vector(-0.13, 3.51, 0), Vector(1.37, 3.51, 0)),
    Part.LineSegment(Vector(1.37, 3.51, 0), Vector(1.37, 3.01, 0)),
    Part.LineSegment(Vector(1.37, 3.01, 0), Vector(-0.13, 3.01, 0)),
    Part.LineSegment(Vector(-0.13, 1.84, 0), Vector(-0.13, 2.34, 0)),
    Part.LineSegment(Vector(-0.13, 2.34, 0), Vector(1.37, 2.34, 0)),
    Part.LineSegment(Vector(1.37, 2.34, 0), Vector(1.37, 1.84, 0)),
    Part.LineSegment(Vector(1.37, 1.84, 0), Vector(-0.13, 1.84, 0)),
    Part.LineSegment(Vector(-0.13, 0.68, 0), Vector(-0.13, 1.17, 0)),
    Part.LineSegment(Vector(-0.13, 1.17, 0), Vector(1.37, 1.17, 0)),
    Part.LineSegment(Vector(1.37, 1.17, 0), Vector(1.37, 0.68, 0)),
    Part.LineSegment(Vector(1.37, 0.68, 0), Vector(-0.13, 0.68, 0)),
    Part.LineSegment(Vector(-0.13, -0.49, 0), Vector(-0.13, 0, 0)),
    Part.LineSegment(Vector(-0.13, 0, 0), Vector(1.37, 0, 0)),
    Part.LineSegment(Vector(1.37, 0, 0), Vector(1.37, -0.49, 0)),
    Part.LineSegment(Vector(1.37, -0.49, 0), Vector(-0.13, -0.49, 0)),
], False)
sketch8.addConstraint([
    Sketcher.Constraint("Coincident", 0, 2, 1, 1),
    Sketcher.Constraint("Coincident", 1, 2, 2, 1),
    Sketcher.Constraint("Coincident", 2, 2, 3, 1),
    Sketcher.Constraint("Coincident", 3, 2, 0, 1),
    Sketcher.Constraint("Coincident", 4, 2, 5, 1),
    Sketcher.Constraint("Coincident", 5, 2, 6, 1),
    Sketcher.Constraint("Coincident", 6, 2, 7, 1),
    Sketcher.Constraint("Coincident", 7, 2, 4, 1),
    Sketcher.Constraint("Coincident", 8, 2, 9, 1),
    Sketcher.Constraint("Coincident", 9, 2, 10, 1),
    Sketcher.Constraint("Coincident", 10, 2, 11, 1),
    Sketcher.Constraint("Coincident", 11, 2, 8, 1),
    Sketcher.Constraint("Coincident", 12, 2, 13, 1),
    Sketcher.Constraint("Coincident", 13, 2, 14, 1),
    Sketcher.Constraint("Coincident", 14, 2, 15, 1),
    Sketcher.Constraint("Coincident", 15, 2, 12, 1),
    Sketcher.Constraint("Coincident", 16, 2, 17, 1),
    Sketcher.Constraint("Coincident", 17, 2, 18, 1),
    Sketcher.Constraint("Coincident", 18, 2, 19, 1),
    Sketcher.Constraint("Coincident", 19, 2, 16, 1),
    Sketcher.Constraint("Coincident", 20, 2, 21, 1),
    Sketcher.Constraint("Coincident", 21, 2, 22, 1),
    Sketcher.Constraint("Coincident", 22, 2, 23, 1),
    Sketcher.Constraint("Coincident", 23, 2, 20, 1),
    Sketcher.Constraint("Coincident", 24, 2, 25, 1),
    Sketcher.Constraint("Coincident", 25, 2, 26, 1),
    Sketcher.Constraint("Coincident", 26, 2, 27, 1),
    Sketcher.Constraint("Coincident", 27, 2, 24, 1),
    Sketcher.Constraint("Coincident", 28, 2, 29, 1),
    Sketcher.Constraint("Coincident", 29, 2, 30, 1),
    Sketcher.Constraint("Coincident", 30, 2, 31, 1),
    Sketcher.Constraint("Coincident", 31, 2, 28, 1),
    Sketcher.Constraint("Vertical", 0),
    Sketcher.Constraint("Horizontal", 1),
    Sketcher.Constraint("Vertical", 2),
    Sketcher.Constraint("Horizontal", 3),
    Sketcher.Constraint("Vertical", 4),
    Sketcher.Constraint("Horizontal", 5),
    Sketcher.Constraint("Vertical", 6),
    Sketcher.Constraint("Horizontal", 7),
    Sketcher.Constraint("Vertical", 8),
    Sketcher.Constraint("Horizontal", 9),
    Sketcher.Constraint("Vertical", 10),
    Sketcher.Constraint("Horizontal", 11),
    Sketcher.Constraint("Vertical", 12),
    Sketcher.Constraint("Horizontal", 13),
    Sketcher.Constraint("Vertical", 14),
    Sketcher.Constraint("Horizontal", 15),
    Sketcher.Constraint("Vertical", 16),
    Sketcher.Constraint("Horizontal", 17),
    Sketcher.Constraint("Vertical", 18),
    Sketcher.Constraint("Horizontal", 19),
    Sketcher.Constraint("Vertical", 20),
    Sketcher.Constraint("Horizontal", 21),
    Sketcher.Constraint("Vertical", 22),
    Sketcher.Constraint("Horizontal", 23),
    Sketcher.Constraint("Vertical", 24),
    Sketcher.Constraint("Horizontal", 25),
    Sketcher.Constraint("Vertical", 26),
    Sketcher.Constraint("Horizontal", 27),
    Sketcher.Constraint("Vertical", 28),
    Sketcher.Constraint("Horizontal", 29),
    Sketcher.Constraint("Vertical", 30),
    Sketcher.Constraint("Horizontal", 31),
    Sketcher.Constraint("Horizontal", 9, 2, 16, 2),
    Sketcher.Constraint("Horizontal", 11, 2, 18, 2),
    Sketcher.Constraint("Horizontal", 5, 2, 20, 2),
    Sketcher.Constraint("Horizontal", 7, 2, 22, 2),
    Sketcher.Constraint("Horizontal", 1, 2, 24, 2),
    Sketcher.Constraint("Horizontal", 3, 2, 26, 2),
    Sketcher.Constraint("Horizontal", 13, 2, 28, 2),
    Sketcher.Constraint("Horizontal", 15, 2, 30, 2),
    Sketcher.Constraint("Vertical", 3, 2, 4, 2),
    Sketcher.Constraint("Vertical", 2, 2, 5, 2),
    Sketcher.Constraint("Vertical", 7, 2, 8, 2),
    Sketcher.Constraint("Vertical", 6, 2, 9, 2),
    Sketcher.Constraint("Vertical", 11, 2, 12, 2),
    Sketcher.Constraint("Vertical", 10, 2, 13, 2),
    Sketcher.Constraint("Vertical", 19, 2, 20, 2),
    Sketcher.Constraint("Vertical", 18, 2, 21, 2),
    Sketcher.Constraint("Vertical", 23, 2, 24, 2),
    Sketcher.Constraint("Vertical", 22, 2, 25, 2),
    Sketcher.Constraint("Vertical", 27, 2, 28, 2),
    Sketcher.Constraint("Vertical", 26, 2, 29, 2),
    Sketcher.Constraint("Equal", 15, 17),
    Sketcher.Constraint("Equal", 2, 4),
    Sketcher.Constraint("Equal", 6, 8),
    Sketcher.Constraint("Equal", 10, 12),
    Sketcher.Constraint("DistanceX", 1, 1, 1, 2, Q("1.5 mm")),
    Sketcher.Constraint("DistanceX", 17, 2, 8, 2, Q("4 mm")),
    Sketcher.Constraint("DistanceY", 0, 2, 4, 2, Q("1.168101 mm")),
    Sketcher.Constraint("DistanceY", 4, 2, 8, 2, Q("1.168101 mm")),
    Sketcher.Constraint("DistanceY", 12, 2, 0, 2, Q("1.168101 mm")),
    Sketcher.Constraint("DistanceY", 0, 1, 0, 2, Q("0.495696 mm")),
    Sketcher.Constraint("DistanceY", -1, 1, 2, 2, Q("0.67602 mm")),
    Sketcher.Constraint("DistanceX", -1, 1, 0, 2, Q("5.366516 mm")),
])
sketch8.setExpression("Constraints[88]", "Params.sketch8_width")
pad6 = body.newObject("PartDesign::Pad", "Pad005")
pad6.Profile = sketch8
pad6.setExpression("Length", "Params.pad6_length")
pad6.Reversed = True

doc.recompute()
